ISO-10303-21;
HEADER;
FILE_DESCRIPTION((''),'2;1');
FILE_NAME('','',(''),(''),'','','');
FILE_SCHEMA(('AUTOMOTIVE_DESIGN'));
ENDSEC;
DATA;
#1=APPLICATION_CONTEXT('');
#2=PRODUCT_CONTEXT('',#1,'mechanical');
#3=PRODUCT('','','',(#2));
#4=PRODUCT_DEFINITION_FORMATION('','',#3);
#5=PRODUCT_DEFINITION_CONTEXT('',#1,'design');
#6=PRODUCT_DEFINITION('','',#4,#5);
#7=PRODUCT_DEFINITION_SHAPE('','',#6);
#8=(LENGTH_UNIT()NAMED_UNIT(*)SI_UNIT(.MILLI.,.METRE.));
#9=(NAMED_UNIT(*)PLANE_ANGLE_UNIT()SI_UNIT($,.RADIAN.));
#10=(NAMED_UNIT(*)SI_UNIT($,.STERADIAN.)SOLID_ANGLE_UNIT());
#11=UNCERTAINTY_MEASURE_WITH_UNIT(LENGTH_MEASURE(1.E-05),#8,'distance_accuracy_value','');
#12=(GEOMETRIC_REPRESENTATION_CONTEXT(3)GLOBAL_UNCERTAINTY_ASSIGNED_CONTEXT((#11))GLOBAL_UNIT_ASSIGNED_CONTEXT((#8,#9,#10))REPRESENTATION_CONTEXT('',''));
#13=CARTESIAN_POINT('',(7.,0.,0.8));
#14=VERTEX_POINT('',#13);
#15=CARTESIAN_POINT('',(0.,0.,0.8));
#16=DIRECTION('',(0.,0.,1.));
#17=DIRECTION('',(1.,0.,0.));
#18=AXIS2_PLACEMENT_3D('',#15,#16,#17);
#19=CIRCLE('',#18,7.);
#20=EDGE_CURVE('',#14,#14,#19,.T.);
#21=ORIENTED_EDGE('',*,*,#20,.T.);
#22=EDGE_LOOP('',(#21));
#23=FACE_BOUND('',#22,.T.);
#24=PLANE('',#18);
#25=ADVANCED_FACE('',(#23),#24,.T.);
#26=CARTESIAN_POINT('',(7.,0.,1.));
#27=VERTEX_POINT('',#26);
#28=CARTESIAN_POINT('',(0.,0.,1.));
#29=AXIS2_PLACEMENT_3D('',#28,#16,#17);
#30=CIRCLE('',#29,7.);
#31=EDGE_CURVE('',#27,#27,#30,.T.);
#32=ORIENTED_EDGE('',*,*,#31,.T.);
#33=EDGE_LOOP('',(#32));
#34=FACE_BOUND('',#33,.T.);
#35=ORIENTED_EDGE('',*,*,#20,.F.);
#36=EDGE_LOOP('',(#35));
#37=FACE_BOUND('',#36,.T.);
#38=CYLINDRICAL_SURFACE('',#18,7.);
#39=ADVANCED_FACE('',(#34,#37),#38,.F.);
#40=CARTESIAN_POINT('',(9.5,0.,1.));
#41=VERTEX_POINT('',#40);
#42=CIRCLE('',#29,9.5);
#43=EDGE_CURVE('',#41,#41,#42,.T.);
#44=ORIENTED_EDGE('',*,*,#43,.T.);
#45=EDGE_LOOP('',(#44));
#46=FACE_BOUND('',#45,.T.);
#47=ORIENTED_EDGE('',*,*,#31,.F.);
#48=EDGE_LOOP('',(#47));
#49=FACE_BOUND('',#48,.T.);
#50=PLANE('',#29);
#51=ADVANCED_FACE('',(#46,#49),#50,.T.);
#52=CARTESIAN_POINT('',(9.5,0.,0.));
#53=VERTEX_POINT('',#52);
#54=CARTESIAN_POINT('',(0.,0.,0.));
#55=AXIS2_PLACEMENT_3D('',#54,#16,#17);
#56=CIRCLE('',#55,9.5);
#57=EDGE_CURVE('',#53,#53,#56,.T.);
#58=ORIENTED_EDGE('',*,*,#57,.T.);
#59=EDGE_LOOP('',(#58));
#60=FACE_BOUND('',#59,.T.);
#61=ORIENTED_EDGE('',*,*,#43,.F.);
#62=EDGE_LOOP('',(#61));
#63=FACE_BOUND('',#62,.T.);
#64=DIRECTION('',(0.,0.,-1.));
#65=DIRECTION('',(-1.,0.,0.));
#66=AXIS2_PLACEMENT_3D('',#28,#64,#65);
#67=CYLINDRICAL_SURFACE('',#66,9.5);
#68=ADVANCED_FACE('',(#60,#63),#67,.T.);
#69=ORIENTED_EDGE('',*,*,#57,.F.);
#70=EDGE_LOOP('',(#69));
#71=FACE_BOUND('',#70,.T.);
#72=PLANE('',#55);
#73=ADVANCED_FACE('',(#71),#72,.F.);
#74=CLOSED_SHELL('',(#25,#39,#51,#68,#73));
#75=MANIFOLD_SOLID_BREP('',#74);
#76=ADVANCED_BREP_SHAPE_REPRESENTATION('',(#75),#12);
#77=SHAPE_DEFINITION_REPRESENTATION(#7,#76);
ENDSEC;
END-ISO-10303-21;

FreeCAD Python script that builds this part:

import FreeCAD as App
import Part
import Sketcher

V = App.Vector
Q = App.Units.Quantity

doc = App.newDocument("Part")
params = doc.addObject("Spreadsheet::Sheet", "Params")
for row, (alias, value) in enumerate([
    ("sketch1_diameter", "19 mm"),
    ("pad1_length", "1 mm"),
    ("sketch2_diameter", "14 mm"),
    ("pocket1_length", "0.2 mm"),
], start=1):
    params.set(f"A{row}", alias)
    params.set(f"B{row}", "=" + value)
    params.setAlias(f"B{row}", alias)

body = doc.addObject("PartDesign::Body", "Body")

sketch1 = doc.addObject("Sketcher::SketchObject", "Sketch")
body.addObject(sketch1)
sketch1.AttachmentSupport = (doc.XY_Plane, [""])
sketch1.MapMode = "FlatFace"
sketch1.addGeometry(Part.Circle(V(0, 0, 0), V(0, 0, 1), 9.5), False)
sketch1.addConstraint([
    Sketcher.Constraint("Coincident", 0, 3, -1, 1),
    Sketcher.Constraint("Diameter", 0, Q("19 mm")),
])
sketch1.setExpression("Constraints[1]", "Params.sketch1_diameter")
pad1 = doc.addObject("PartDesign::Pad", "Pad")
body.addObject(pad1)
pad1.Profile = sketch1
pad1.setExpression("Length", "Params.pad1_length")

sketch2 = doc.addObject("Sketcher::SketchObject", "Sketch001")
body.addObject(sketch2)
sketch2.AttachmentSupport = (doc.XY_Plane, [""])
sketch2.MapMode = "FlatFace"
sketch2.AttachmentOffset = App.Placement(V(0, 0, 1), App.Rotation())
sketch2.addGeometry(Part.Circle(V(0, 0, 0), V(0, 0, 1), 7), False)
sketch2.addConstraint([
    Sketcher.Constraint("Coincident", 0, 3, -1, 1),
    Sketcher.Constraint("Diameter", 0, Q("14 mm")),
])
sketch2.setExpression("Constraints[1]", "Params.sketch2_diameter")
pocket1 = doc.addObject("PartDesign::Pocket", "Pocket")
body.addObject(pocket1)
pocket1.Profile = sketch2
pocket1.setExpression("Length", "Params.pocket1_length")

doc.recompute()
